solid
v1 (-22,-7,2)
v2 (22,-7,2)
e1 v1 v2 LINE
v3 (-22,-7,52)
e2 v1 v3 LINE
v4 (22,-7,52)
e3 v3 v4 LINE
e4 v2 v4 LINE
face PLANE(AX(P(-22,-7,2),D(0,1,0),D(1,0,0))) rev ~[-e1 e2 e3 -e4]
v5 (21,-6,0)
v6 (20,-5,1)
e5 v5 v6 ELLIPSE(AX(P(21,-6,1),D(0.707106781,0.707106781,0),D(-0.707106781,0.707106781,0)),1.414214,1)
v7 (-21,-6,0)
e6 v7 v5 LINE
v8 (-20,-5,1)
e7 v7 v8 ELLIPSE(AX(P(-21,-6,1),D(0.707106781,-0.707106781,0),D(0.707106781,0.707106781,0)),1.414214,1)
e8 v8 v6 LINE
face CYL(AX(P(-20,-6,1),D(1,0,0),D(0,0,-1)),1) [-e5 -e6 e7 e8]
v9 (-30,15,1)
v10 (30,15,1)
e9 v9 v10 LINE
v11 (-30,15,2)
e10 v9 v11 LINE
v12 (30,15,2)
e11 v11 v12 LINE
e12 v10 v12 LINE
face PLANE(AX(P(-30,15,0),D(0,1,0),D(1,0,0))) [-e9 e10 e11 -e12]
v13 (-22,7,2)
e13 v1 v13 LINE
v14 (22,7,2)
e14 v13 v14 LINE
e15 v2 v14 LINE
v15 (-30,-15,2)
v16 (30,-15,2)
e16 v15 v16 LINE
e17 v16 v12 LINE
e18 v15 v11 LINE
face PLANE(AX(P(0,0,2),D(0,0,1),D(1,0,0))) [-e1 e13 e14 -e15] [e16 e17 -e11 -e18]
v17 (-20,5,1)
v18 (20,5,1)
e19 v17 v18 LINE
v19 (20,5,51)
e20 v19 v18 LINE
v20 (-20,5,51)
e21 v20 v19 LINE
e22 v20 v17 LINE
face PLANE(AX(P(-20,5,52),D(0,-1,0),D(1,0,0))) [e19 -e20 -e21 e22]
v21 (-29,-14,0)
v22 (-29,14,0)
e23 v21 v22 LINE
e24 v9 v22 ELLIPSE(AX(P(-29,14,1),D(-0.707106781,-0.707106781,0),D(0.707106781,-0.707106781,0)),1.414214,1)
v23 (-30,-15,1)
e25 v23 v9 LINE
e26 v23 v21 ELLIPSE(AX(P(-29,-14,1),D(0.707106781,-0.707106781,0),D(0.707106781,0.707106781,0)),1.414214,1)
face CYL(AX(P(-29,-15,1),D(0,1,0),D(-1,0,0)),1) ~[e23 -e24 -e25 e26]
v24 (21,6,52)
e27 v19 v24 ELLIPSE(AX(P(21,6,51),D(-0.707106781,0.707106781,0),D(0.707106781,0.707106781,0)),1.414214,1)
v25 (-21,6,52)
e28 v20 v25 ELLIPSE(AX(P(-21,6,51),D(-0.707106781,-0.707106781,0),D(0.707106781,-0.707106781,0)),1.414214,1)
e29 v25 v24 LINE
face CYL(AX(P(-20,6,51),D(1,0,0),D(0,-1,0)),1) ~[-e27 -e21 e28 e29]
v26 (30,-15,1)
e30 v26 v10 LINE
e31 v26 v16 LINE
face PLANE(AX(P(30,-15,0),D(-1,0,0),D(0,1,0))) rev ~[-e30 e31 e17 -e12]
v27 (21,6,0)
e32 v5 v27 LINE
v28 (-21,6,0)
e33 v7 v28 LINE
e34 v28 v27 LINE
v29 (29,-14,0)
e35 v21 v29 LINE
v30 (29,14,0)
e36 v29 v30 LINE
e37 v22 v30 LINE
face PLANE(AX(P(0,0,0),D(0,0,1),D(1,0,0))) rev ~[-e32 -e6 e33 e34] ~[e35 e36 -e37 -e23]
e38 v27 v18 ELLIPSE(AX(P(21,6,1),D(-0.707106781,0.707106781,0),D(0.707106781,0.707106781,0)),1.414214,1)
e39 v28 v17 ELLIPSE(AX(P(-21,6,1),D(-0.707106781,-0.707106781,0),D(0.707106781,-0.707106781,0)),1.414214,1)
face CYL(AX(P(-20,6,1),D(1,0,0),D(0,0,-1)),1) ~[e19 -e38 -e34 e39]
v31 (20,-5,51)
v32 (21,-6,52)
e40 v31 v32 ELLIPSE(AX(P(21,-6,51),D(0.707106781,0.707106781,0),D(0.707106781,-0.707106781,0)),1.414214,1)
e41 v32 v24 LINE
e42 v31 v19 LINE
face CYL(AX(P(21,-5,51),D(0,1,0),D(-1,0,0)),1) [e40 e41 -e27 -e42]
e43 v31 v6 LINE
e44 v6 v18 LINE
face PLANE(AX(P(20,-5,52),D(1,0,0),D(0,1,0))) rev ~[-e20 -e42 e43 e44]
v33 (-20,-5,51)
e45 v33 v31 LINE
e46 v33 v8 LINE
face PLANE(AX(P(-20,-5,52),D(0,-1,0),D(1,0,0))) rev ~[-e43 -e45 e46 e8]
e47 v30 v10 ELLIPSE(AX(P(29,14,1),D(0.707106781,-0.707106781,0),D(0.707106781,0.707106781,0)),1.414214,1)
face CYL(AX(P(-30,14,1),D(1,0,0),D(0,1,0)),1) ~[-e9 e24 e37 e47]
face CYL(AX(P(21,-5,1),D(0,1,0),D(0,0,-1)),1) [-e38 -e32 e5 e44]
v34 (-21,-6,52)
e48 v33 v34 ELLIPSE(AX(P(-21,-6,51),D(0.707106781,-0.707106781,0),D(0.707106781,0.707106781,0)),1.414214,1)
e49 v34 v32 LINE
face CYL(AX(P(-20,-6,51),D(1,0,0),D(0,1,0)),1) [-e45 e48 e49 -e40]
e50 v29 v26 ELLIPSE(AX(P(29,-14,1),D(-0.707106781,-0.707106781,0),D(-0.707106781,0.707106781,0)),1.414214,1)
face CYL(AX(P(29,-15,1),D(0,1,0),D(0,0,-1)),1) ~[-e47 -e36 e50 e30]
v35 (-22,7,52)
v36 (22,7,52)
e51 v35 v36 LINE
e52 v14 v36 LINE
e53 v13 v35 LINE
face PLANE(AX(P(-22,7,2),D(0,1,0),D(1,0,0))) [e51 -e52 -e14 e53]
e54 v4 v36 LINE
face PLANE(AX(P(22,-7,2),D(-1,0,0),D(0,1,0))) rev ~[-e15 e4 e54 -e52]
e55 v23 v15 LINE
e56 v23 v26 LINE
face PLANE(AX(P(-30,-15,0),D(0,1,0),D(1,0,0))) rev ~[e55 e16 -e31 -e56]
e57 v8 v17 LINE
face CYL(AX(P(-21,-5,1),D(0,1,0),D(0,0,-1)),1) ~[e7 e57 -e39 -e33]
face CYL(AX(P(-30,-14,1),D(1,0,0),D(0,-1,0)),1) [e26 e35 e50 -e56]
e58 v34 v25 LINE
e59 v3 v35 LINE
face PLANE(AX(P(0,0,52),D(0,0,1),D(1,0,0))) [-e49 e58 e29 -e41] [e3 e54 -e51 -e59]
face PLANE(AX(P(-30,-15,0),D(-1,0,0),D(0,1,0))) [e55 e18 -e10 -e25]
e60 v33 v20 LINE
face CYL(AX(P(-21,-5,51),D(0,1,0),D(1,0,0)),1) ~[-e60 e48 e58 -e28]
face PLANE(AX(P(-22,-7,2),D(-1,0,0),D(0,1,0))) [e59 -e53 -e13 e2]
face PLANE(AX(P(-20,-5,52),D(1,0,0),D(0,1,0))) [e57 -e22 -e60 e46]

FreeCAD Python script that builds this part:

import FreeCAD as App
import Part
import Sketcher

V = App.Vector
Q = App.Units.Quantity


def edges_at(feature, points):
    """Names of the edges that pass closest to the given points."""
    edges = feature.Shape.Edges
    near = lambda p: min(range(len(edges)), key=lambda i: edges[i].distToShape(Part.Vertex(*p))[0])
    return sorted({f"Edge{near(p) + 1}" for p in points})


def add_polygon(sketch, points):
    """Adds a closed chain of lines whose ends are joined by coincident constraints."""
    first, n = sketch.GeometryCount, len(points)
    for a, b in zip(points, points[1:] + points[:1]):
        sketch.addGeometry(Part.LineSegment(App.Vector(*a, 0), App.Vector(*b, 0)), False)
    for i in range(n):
        sketch.addConstraint(Sketcher.Constraint("Coincident", first + i, 2, first + (i + 1) % n, 1))

doc = App.newDocument("Part")
body = doc.addObject("PartDesign::Body", "Body")

sketch1 = doc.addObject("Sketcher::SketchObject", "Sketch")
body.addObject(sketch1)
sketch1.AttachmentSupport = (doc.XY_Plane, [""])
sketch1.MapMode = "FlatFace"
add_polygon(sketch1, [(-30, 15), (-30, -15), (30, -15), (30, 15)])
sketch1.addConstraint([
    Sketcher.Constraint("Vertical", 0),
    Sketcher.Constraint("Horizontal", 1),
    Sketcher.Constraint("Vertical", 2),
    Sketcher.Constraint("Horizontal", 3),
    Sketcher.Constraint("Symmetric", 0, 2, 2, 2, -1, 1),
    Sketcher.Constraint("DistanceX", 1, 1, 1, 2, Q("60 mm")),
    Sketcher.Constraint("DistanceY", 0, 2, 0, 1, Q("30 mm")),
])
pad1 = doc.addObject("PartDesign::Pad", "Pad")
body.addObject(pad1)
pad1.Profile = sketch1
pad1.Length = 2

sketch2 = doc.addObject("Sketcher::SketchObject", "Sketch001")
body.addObject(sketch2)
sketch2.AttachmentSupport = (doc.XY_Plane, [""])
sketch2.MapMode = "FlatFace"
sketch2.AttachmentOffset = App.Placement(V(0, 0, 2), App.Rotation())
add_polygon(sketch2, [(-22, 7), (-22, -7), (22, -7), (22, 7)])
sketch2.addConstraint([
    Sketcher.Constraint("Vertical", 0),
    Sketcher.Constraint("Horizontal", 1),
    Sketcher.Constraint("Vertical", 2),
    Sketcher.Constraint("Horizontal", 3),
    Sketcher.Constraint("Symmetric", 0, 2, 2, 2, -1, 1),
    Sketcher.Constraint("DistanceX", 1, 1, 1, 2, Q("44 mm")),
    Sketcher.Constraint("DistanceY", 0, 2, 0, 1, Q("14 mm")),
])
pad2 = doc.addObject("PartDesign::Pad", "Pad001")
body.addObject(pad2)
pad2.Profile = sketch2
pad2.Length = 50

sketch3 = doc.addObject("Sketcher::SketchObject", "Sketch002")
body.addObject(sketch3)
sketch3.AttachmentSupport = (doc.XY_Plane, [""])
sketch3.MapMode = "FlatFace"
sketch3.AttachmentOffset = App.Placement(V(0, 0, 52), App.Rotation())
add_polygon(sketch3, [(-20, 5), (-20, -5), (20, -5), (20, 5)])
sketch3.addConstraint([
    Sketcher.Constraint("Vertical", 0),
    Sketcher.Constraint("Horizontal", 1),
    Sketcher.Constraint("Vertical", 2),
    Sketcher.Constraint("Horizontal", 3),
    Sketcher.Constraint("Symmetric", 0, 2, 2, 2, -1, 1),
    Sketcher.Constraint("DistanceX", 1, 1, 1, 2, Q("40 mm")),
    Sketcher.Constraint("DistanceY", 0, 2, 0, 1, Q("10 mm")),
])
pocket1 = doc.addObject("PartDesign::Pocket", "Pocket")
body.addObject(pocket1)
pocket1.Profile = sketch3
pocket1.Type = "ThroughAll"
doc.recompute()

fillet = doc.addObject("PartDesign::Fillet", "Fillet")
body.addObject(fillet)
fillet.Base = (pocket1, edges_at(pocket1, [
    (30, 0, 0),
    (0, -15, 0),
    (0, 15, 0),
    (-30, 0, 0),
    (20, 0, 0),
    (0, 5, 0),
    (-20, 0, 0),
    (0, -5, 0),
    (0, 5, 52),
    (-20, 0, 52),
    (0, -5, 52),
    (20, 0, 52),
]))
fillet.Radius = 1

doc.recompute()
